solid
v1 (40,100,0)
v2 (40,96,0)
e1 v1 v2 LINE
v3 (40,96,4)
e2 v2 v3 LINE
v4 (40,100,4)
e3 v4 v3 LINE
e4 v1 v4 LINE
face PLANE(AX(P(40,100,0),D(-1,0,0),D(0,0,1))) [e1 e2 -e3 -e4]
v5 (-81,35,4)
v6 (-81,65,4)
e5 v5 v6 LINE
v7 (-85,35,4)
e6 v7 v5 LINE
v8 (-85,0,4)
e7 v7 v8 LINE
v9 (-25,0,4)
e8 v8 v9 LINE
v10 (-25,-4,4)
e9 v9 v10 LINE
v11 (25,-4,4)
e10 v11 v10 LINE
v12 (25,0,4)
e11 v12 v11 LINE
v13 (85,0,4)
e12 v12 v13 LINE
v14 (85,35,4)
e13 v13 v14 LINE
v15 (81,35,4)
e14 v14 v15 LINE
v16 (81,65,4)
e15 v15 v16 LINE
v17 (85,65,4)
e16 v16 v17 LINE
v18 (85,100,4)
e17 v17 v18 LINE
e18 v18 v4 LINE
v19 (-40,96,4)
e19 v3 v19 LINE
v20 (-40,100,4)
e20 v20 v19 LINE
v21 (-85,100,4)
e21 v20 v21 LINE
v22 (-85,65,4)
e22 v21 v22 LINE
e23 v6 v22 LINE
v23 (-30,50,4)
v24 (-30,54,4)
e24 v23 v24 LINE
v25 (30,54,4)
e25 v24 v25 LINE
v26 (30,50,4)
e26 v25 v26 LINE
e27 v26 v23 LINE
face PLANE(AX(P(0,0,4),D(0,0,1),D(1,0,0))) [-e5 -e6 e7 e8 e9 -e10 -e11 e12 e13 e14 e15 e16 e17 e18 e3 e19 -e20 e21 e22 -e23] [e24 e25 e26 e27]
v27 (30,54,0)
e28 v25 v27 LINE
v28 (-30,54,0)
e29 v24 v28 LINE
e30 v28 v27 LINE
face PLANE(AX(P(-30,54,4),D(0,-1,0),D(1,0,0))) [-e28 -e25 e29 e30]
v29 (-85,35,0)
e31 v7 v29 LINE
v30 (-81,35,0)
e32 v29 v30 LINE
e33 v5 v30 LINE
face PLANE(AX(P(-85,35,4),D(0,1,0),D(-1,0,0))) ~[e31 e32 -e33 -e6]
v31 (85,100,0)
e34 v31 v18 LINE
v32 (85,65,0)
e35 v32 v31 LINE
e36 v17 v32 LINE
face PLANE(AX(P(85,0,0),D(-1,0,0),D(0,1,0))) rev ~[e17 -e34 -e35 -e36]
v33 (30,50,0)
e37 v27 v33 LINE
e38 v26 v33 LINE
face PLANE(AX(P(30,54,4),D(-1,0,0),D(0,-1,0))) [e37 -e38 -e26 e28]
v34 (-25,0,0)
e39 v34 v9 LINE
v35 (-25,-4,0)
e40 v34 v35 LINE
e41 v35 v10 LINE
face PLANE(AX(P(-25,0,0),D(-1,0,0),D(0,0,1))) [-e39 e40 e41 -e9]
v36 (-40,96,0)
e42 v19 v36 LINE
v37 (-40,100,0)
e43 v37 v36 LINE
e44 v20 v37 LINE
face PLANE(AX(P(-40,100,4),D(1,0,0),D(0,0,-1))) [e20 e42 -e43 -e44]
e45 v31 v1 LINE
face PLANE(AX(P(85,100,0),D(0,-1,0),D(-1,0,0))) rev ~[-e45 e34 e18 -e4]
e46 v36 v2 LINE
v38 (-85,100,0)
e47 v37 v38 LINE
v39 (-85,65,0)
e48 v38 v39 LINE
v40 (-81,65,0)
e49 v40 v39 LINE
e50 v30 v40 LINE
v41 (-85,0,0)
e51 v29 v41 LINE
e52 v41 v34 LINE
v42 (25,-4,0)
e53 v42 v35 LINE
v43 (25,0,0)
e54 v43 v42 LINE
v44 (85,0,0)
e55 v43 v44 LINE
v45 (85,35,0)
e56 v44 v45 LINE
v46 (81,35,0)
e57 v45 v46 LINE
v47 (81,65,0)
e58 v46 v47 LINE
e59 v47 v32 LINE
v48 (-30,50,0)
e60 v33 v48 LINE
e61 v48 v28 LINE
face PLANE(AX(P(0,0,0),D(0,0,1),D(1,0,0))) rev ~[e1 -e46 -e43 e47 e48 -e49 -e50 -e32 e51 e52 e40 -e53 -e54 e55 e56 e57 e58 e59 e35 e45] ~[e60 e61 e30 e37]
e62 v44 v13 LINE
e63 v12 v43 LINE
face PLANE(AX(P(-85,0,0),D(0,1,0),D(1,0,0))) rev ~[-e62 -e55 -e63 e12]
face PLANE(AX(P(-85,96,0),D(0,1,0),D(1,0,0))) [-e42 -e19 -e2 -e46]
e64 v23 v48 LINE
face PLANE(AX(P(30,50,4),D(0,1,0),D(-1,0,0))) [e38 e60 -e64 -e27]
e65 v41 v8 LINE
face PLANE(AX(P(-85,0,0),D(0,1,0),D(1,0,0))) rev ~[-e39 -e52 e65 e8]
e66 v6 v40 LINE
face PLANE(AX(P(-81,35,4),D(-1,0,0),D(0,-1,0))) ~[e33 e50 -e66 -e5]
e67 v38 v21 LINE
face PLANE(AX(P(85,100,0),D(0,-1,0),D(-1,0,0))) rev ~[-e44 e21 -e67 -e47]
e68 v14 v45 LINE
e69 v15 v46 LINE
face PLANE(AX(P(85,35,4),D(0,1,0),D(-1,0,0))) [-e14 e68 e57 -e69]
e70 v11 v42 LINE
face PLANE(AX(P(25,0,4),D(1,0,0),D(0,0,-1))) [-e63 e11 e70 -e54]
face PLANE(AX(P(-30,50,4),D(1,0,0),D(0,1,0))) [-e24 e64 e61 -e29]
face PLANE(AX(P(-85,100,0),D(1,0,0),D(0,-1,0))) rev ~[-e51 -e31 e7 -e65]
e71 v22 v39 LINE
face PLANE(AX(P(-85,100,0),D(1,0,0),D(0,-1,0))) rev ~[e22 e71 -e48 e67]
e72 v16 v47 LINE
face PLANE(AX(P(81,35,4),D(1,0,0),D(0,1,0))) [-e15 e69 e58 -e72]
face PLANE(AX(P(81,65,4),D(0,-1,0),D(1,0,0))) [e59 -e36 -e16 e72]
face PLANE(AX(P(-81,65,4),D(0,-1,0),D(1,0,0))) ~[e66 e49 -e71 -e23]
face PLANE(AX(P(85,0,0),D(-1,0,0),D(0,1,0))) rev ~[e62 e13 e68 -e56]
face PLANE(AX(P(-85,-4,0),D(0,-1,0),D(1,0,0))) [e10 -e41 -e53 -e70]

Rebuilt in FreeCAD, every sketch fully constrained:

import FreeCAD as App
import Part
import Sketcher
from FreeCAD import Vector
Q = App.Units.Quantity

doc = App.newDocument("Part")
body = doc.addObject("PartDesign::Body", "Body")

# Sketch on XY plane
sketch1 = body.newObject("Sketcher::SketchObject", "Sketch")
sketch1.AttachmentSupport = (doc.getObject("XY_Plane"), [""])
sketch1.MapMode = "FlatFace"
sketch1.addGeometry([
    Part.LineSegment(Vector(-85, 100, 0), Vector(-85, 0, 0)),
    Part.LineSegment(Vector(-85, 0, 0), Vector(85, 0, 0)),
    Part.LineSegment(Vector(85, 0, 0), Vector(85, 100, 0)),
    Part.LineSegment(Vector(85, 100, 0), Vector(-85, 100, 0)),
], False)
sketch1.addConstraint([
    Sketcher.Constraint("Coincident", 0, 2, 1, 1),
    Sketcher.Constraint("Coincident", 1, 2, 2, 1),
    Sketcher.Constraint("Coincident", 2, 2, 3, 1),
    Sketcher.Constraint("Coincident", 3, 2, 0, 1),
    Sketcher.Constraint("Vertical", 0),
    Sketcher.Constraint("Horizontal", 1),
    Sketcher.Constraint("Vertical", 2),
    Sketcher.Constraint("Horizontal", 3),
    Sketcher.Constraint("Symmetric", 0, 2, 1, 2, -1, 1),
    Sketcher.Constraint("DistanceX", 1, 1, 1, 2, Q("170 mm")),
    Sketcher.Constraint("DistanceY", 0, 2, 0, 1, Q("100 mm")),
])
pad1 = body.newObject("PartDesign::Pad", "Pad")
pad1.Profile = sketch1
pad1.Length = 4

# Sketch on XZ plane
sketch2 = body.newObject("Sketcher::SketchObject", "Sketch001")
sketch2.AttachmentSupport = (doc.getObject("XZ_Plane"), [""])
sketch2.MapMode = "FlatFace"
sketch2.addGeometry([
    Part.LineSegment(Vector(25, 0, 0), Vector(25, 4, 0)),
    Part.LineSegment(Vector(25, 4, 0), Vector(-25, 4, 0)),
    Part.LineSegment(Vector(-25, 4, 0), Vector(-25, 0, 0)),
    Part.LineSegment(Vector(-25, 0, 0), Vector(25, 0, 0)),
], False)
sketch2.addConstraint([
    Sketcher.Constraint("Coincident", 0, 2, 1, 1),
    Sketcher.Constraint("Coincident", 1, 2, 2, 1),
    Sketcher.Constraint("Coincident", 2, 2, 3, 1),
    Sketcher.Constraint("Coincident", 3, 2, 0, 1),
    Sketcher.Constraint("Vertical", 0),
    Sketcher.Constraint("Horizontal", 1),
    Sketcher.Constraint("Vertical", 2),
    Sketcher.Constraint("Horizontal", 3),
    Sketcher.Constraint("Symmetric", 2, 2, 3, 2, -1, 1),
    Sketcher.Constraint("DistanceX", 1, 2, 1, 1, Q("50 mm")),
    Sketcher.Constraint("DistanceY", 0, 1, 0, 2, Q("4 mm")),
])
pad2 = body.newObject("PartDesign::Pad", "Pad001")
pad2.Profile = sketch2
pad2.Length = 4

# Sketch on XY plane
sketch3 = body.newObject("Sketcher::SketchObject", "Sketch002")
sketch3.AttachmentSupport = (doc.getObject("XY_Plane"), [""])
sketch3.MapMode = "FlatFace"
sketch3.AttachmentOffset = App.Placement(Vector(0, 0, 4), App.Rotation())
sketch3.addGeometry([
    Part.LineSegment(Vector(81, 35, 0), Vector(85, 35, 0)),
    Part.LineSegment(Vector(85, 35, 0), Vector(85, 65, 0)),
    Part.LineSegment(Vector(85, 65, 0), Vector(81, 65, 0)),
    Part.LineSegment(Vector(81, 65, 0), Vector(81, 35, 0)),
], False)
sketch3.addConstraint([
    Sketcher.Constraint("Coincident", 0, 2, 1, 1),
    Sketcher.Constraint("Coincident", 1, 2, 2, 1),
    Sketcher.Constraint("Coincident", 2, 2, 3, 1),
    Sketcher.Constraint("Coincident", 3, 2, 0, 1),
    Sketcher.Constraint("Horizontal", 0),
    Sketcher.Constraint("Vertical", 1),
    Sketcher.Constraint("Horizontal", 2),
    Sketcher.Constraint("Vertical", 3),
    Sketcher.Constraint("DistanceX", 0, 1, 0, 2, Q("4 mm")),
    Sketcher.Constraint("DistanceY", -1, 1, 0, 2, Q("35 mm")),
    Sketcher.Constraint("DistanceY", 1, 1, 1, 2, Q("30 mm")),
    Sketcher.Constraint("DistanceX", -1, 1, 0, 2, Q("85 mm")),
])
pocket1 = body.newObject("PartDesign::Pocket", "Pocket")
pocket1.Profile = sketch3
pocket1.Length = 10
doc.recompute()

mirrored = body.newObject("PartDesign::Mirrored", "Mirrored")
mirrored.Originals = [pocket1]
mirrored.MirrorPlane = (doc.getObject("YZ_Plane"), [""])
body.Tip = mirrored

# Sketch on XZ plane
sketch4 = body.newObject("Sketcher::SketchObject", "Sketch003")
sketch4.AttachmentSupport = (doc.getObject("XZ_Plane"), [""])
sketch4.MapMode = "FlatFace"
sketch4.AttachmentOffset = App.Placement(Vector(0, 0, -100), App.Rotation())
sketch4.addGeometry([
    Part.LineSegment(Vector(-40, 4, 0), Vector(40, 4, 0)),
    Part.LineSegment(Vector(40, 4, 0), Vector(40, 0, 0)),
    Part.LineSegment(Vector(40, 0, 0), Vector(-40, 0, 0)),
    Part.LineSegment(Vector(-40, 0, 0), Vector(-40, 4, 0)),
], False)
sketch4.addConstraint([
    Sketcher.Constraint("Coincident", 0, 2, 1, 1),
    Sketcher.Constraint("Coincident", 1, 2, 2, 1),
    Sketcher.Constraint("Coincident", 2, 2, 3, 1),
    Sketcher.Constraint("Coincident", 3, 2, 0, 1),
    Sketcher.Constraint("Horizontal", 0),
    Sketcher.Constraint("Vertical", 1),
    Sketcher.Constraint("Horizontal", 2),
    Sketcher.Constraint("Vertical", 3),
    Sketcher.Constraint("Symmetric", 1, 2, 2, 2, -1, 1),
    Sketcher.Constraint("DistanceX", 0, 1, 0, 2, Q("80 mm")),
    Sketcher.Constraint("DistanceY", 1, 2, 1, 1, Q("4 mm")),
])
pocket2 = body.newObject("PartDesign::Pocket", "Pocket001")
pocket2.Profile = sketch4
pocket2.Length = 4
pocket2.Reversed = True

# Sketch on XY plane
sketch5 = body.newObject("Sketcher::SketchObject", "Sketch004")
sketch5.AttachmentSupport = (doc.getObject("XY_Plane"), [""])
sketch5.MapMode = "FlatFace"
sketch5.AttachmentOffset = App.Placement(Vector(0, 0, 4), App.Rotation())
sketch5.addGeometry([
    Part.LineSegment(Vector(30, 54, 0), Vector(-30, 54, 0)),
    Part.LineSegment(Vector(-30, 54, 0), Vector(-30, 50, 0)),
    Part.LineSegment(Vector(-30, 50, 0), Vector(30, 50, 0)),
    Part.LineSegment(Vector(30, 50, 0), Vector(30, 54, 0)),
], False)
sketch5.addConstraint([
    Sketcher.Constraint("Coincident", 0, 2, 1, 1),
    Sketcher.Constraint("Coincident", 1, 2, 2, 1),
    Sketcher.Constraint("Coincident", 2, 2, 3, 1),
    Sketcher.Constraint("Coincident", 3, 2, 0, 1),
    Sketcher.Constraint("Horizontal", 0),
    Sketcher.Constraint("Vertical", 1),
    Sketcher.Constraint("Horizontal", 2),
    Sketcher.Constraint("Vertical", 3),
    Sketcher.Constraint("DistanceX", 0, 2, 0, 1, Q("60 mm")),
    Sketcher.Constraint("DistanceY", 1, 2, 1, 1, Q("4 mm")),
    Sketcher.Constraint("DistanceY", -1, 1, 1, 2, Q("50 mm")),
    Sketcher.Constraint("DistanceX", 0, 2, -1, 1, Q("30 mm")),
])
pocket3 = body.newObject("PartDesign::Pocket", "Pocket002")
pocket3.Profile = sketch5
pocket3.Length = 10

doc.recompute()
